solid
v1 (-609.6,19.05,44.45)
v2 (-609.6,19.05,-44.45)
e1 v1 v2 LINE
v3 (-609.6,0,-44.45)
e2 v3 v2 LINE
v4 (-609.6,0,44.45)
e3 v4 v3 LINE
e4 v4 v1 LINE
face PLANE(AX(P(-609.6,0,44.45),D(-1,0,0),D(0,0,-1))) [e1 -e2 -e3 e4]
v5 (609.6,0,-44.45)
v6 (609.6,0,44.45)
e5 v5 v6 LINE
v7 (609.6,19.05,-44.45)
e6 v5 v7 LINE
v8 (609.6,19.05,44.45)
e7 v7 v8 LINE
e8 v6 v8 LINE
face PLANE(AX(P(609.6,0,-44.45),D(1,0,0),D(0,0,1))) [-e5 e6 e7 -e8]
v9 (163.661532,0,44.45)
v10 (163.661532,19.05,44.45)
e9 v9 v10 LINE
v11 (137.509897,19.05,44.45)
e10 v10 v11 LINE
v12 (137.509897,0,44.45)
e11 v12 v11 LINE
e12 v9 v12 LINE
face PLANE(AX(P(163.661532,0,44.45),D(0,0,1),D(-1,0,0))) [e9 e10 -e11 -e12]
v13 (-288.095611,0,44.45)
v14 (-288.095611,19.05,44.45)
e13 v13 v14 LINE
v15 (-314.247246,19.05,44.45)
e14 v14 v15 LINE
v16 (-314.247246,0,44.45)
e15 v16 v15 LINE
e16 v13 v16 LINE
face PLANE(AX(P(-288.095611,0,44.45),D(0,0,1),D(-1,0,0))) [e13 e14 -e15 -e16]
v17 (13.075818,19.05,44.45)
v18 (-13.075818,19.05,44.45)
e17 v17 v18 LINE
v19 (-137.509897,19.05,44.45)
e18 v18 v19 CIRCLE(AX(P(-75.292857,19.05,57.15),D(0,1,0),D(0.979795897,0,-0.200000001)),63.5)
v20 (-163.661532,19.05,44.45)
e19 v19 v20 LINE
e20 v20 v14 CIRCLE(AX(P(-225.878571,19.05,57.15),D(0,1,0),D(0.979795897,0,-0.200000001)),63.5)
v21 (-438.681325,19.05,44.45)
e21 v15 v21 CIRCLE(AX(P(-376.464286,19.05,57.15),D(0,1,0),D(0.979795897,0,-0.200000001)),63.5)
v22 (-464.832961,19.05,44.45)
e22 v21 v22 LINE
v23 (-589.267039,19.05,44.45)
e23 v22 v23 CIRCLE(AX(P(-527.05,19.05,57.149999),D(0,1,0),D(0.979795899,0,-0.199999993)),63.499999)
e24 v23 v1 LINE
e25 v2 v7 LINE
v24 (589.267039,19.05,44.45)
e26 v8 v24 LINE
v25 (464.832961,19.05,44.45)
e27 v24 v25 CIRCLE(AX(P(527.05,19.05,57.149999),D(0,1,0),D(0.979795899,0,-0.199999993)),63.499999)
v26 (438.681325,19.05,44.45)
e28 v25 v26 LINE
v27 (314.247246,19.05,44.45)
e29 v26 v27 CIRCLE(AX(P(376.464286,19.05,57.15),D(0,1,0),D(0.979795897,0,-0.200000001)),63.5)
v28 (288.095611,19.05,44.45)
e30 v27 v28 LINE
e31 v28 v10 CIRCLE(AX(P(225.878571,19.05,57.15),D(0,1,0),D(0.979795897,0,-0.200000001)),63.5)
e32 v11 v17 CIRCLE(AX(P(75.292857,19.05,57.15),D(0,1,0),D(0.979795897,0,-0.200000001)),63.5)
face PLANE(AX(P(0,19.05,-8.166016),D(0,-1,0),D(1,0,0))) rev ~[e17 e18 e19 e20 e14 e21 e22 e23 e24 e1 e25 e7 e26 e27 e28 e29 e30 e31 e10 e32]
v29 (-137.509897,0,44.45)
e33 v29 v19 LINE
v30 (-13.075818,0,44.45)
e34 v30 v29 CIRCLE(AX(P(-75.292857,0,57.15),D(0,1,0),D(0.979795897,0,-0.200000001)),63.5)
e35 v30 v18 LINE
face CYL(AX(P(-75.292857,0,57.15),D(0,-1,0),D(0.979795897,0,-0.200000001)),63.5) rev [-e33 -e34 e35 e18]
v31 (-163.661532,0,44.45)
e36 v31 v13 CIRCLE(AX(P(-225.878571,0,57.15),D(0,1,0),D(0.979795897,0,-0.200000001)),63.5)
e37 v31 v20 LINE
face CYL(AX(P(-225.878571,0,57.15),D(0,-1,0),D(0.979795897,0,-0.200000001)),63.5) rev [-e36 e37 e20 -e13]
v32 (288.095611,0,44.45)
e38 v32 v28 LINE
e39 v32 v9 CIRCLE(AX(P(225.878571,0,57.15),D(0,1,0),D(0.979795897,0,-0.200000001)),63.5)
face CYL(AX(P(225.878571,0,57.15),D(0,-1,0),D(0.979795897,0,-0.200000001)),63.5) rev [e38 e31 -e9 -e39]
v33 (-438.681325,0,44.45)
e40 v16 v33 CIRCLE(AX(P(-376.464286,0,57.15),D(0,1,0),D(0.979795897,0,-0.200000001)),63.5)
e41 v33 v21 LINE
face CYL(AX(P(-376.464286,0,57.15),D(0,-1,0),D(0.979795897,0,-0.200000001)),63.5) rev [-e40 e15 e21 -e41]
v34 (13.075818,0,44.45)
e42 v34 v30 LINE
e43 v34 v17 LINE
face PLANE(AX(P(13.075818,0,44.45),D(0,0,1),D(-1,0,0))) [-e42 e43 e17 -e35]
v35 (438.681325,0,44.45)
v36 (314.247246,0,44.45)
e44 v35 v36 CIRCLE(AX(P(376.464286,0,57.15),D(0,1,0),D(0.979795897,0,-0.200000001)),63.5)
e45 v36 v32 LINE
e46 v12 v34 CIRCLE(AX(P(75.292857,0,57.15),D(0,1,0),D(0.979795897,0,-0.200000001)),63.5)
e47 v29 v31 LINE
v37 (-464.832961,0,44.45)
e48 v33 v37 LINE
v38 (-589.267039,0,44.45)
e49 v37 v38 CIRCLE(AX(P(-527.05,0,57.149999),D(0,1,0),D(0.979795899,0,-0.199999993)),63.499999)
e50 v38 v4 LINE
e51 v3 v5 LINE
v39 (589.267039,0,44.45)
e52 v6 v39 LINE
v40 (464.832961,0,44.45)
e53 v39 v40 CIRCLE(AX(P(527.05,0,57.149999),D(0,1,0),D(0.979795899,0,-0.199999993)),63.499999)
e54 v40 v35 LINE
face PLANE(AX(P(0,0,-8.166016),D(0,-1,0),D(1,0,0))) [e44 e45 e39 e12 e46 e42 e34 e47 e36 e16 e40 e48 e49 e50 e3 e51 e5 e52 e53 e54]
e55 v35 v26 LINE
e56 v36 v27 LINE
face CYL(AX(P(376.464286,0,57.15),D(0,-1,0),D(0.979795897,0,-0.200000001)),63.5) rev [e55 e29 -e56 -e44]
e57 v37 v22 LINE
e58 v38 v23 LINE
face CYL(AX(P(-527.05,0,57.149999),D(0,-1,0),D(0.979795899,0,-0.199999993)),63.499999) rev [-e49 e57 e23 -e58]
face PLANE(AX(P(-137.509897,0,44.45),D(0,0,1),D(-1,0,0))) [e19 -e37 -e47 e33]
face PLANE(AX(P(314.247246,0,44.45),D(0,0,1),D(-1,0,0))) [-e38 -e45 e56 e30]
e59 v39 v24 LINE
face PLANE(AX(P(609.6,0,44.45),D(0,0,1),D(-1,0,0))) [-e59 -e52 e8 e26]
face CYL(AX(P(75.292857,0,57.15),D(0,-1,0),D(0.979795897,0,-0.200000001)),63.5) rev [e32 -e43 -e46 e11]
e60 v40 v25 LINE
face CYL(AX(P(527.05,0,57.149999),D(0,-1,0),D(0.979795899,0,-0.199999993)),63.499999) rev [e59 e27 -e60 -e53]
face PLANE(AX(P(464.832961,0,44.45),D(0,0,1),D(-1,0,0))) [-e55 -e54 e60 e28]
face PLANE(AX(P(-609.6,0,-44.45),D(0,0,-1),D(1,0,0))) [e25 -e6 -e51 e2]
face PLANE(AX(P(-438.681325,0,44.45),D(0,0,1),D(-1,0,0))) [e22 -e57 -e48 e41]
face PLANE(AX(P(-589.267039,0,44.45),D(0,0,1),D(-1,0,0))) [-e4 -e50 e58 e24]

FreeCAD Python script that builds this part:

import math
import FreeCAD as App
import Part
import Sketcher
from FreeCAD import Vector
Q = App.Units.Quantity

doc = App.newDocument("Part")
body = doc.addObject("PartDesign::Body", "Body")

# Sketch on XZ plane
sketch1 = doc.addObject("Sketcher::SketchObject", "Sketch")
body.addObject(sketch1)
sketch1.AttachmentSupport = (doc.XZ_Plane, [""])
sketch1.MapMode = "FlatFace"
sketch1.addGeometry([
    Part.LineSegment(Vector(-610, -44, 0), Vector(610, -44, 0)),  # 0
    Part.LineSegment(Vector(610, -44, 0), Vector(610, 44, 0)),  # 1
    Part.LineSegment(Vector(610, 44, 0), Vector(589, 44, 0)),  # 2
    Part.ArcOfCircle(Part.Circle(Vector(527, 57, 0), Vector(0, 0, 1), 63), math.radians(-168), math.radians(-12)),  # 3
    Part.LineSegment(Vector(465, 44, 0), Vector(439, 44, 0)),  # 4
    Part.ArcOfCircle(Part.Circle(Vector(376, 57, 0), Vector(0, 0, 1), 64), math.radians(-168), math.radians(-12)),  # 5
    Part.LineSegment(Vector(314, 44, 0), Vector(288, 44, 0)),  # 6
    Part.ArcOfCircle(Part.Circle(Vector(226, 57, 0), Vector(0, 0, 1), 64), math.radians(-168), math.radians(-12)),  # 7
    Part.LineSegment(Vector(164, 44, 0), Vector(138, 44, 0)),  # 8
    Part.ArcOfCircle(Part.Circle(Vector(75, 57, 0), Vector(0, 0, 1), 64), math.radians(-168), math.radians(-12)),  # 9
    Part.LineSegment(Vector(13, 44, 0), Vector(-13, 44, 0)),  # 10
    Part.ArcOfCircle(Part.Circle(Vector(-75, 57, 0), Vector(0, 0, 1), 64), math.radians(-168), math.radians(-12)),  # 11
    Part.LineSegment(Vector(-138, 44, 0), Vector(-164, 44, 0)),  # 12
    Part.ArcOfCircle(Part.Circle(Vector(-226, 57, 0), Vector(0, 0, 1), 64), math.radians(-168), math.radians(-12)),  # 13
    Part.LineSegment(Vector(-288, 44, 0), Vector(-314, 44, 0)),  # 14
    Part.ArcOfCircle(Part.Circle(Vector(-376, 57, 0), Vector(0, 0, 1), 64), math.radians(-168), math.radians(-12)),  # 15
    Part.LineSegment(Vector(-439, 44, 0), Vector(-465, 44, 0)),  # 16
    Part.ArcOfCircle(Part.Circle(Vector(-527, 57, 0), Vector(0, 0, 1), 63), math.radians(-168), math.radians(-12)),  # 17
    Part.LineSegment(Vector(-589, 44, 0), Vector(-610, 44, 0)),  # 18
    Part.LineSegment(Vector(-610, 44, 0), Vector(-610, -44, 0)),  # 19
], False)
sketch1.addConstraint([
    Sketcher.Constraint("Coincident", 0, 2, 1, 1),
    Sketcher.Constraint("Coincident", 1, 2, 2, 1),
    Sketcher.Constraint("Coincident", 2, 2, 3, 2),
    Sketcher.Constraint("Coincident", 3, 1, 4, 1),
    Sketcher.Constraint("Coincident", 4, 2, 5, 2),
    Sketcher.Constraint("Coincident", 5, 1, 6, 1),
    Sketcher.Constraint("Coincident", 6, 2, 7, 2),
    Sketcher.Constraint("Coincident", 7, 1, 8, 1),
    Sketcher.Constraint("Coincident", 8, 2, 9, 2),
    Sketcher.Constraint("Coincident", 9, 1, 10, 1),
    Sketcher.Constraint("Coincident", 10, 2, 11, 2),
    Sketcher.Constraint("Coincident", 11, 1, 12, 1),
    Sketcher.Constraint("Coincident", 12, 2, 13, 2),
    Sketcher.Constraint("Coincident", 13, 1, 14, 1),
    Sketcher.Constraint("Coincident", 14, 2, 15, 2),
    Sketcher.Constraint("Coincident", 15, 1, 16, 1),
    Sketcher.Constraint("Coincident", 16, 2, 17, 2),
    Sketcher.Constraint("Coincident", 17, 1, 18, 1),
    Sketcher.Constraint("Coincident", 18, 2, 19, 1),
    Sketcher.Constraint("Coincident", 19, 2, 0, 1),
    Sketcher.Constraint("Horizontal", 0),
    Sketcher.Constraint("Vertical", 1),
    Sketcher.Constraint("Horizontal", 2),
    Sketcher.Constraint("Horizontal", 4),
    Sketcher.Constraint("Horizontal", 6),
    Sketcher.Constraint("Horizontal", 8),
    Sketcher.Constraint("Horizontal", 10),
    Sketcher.Constraint("Horizontal", 12),
    Sketcher.Constraint("Horizontal", 14),
    Sketcher.Constraint("Horizontal", 16),
    Sketcher.Constraint("Horizontal", 18),
    Sketcher.Constraint("Vertical", 19),
    Sketcher.Constraint("Equal", 3, 5),
    Sketcher.Constraint("Equal", 5, 7),
    Sketcher.Constraint("Equal", 7, 9),
    Sketcher.Constraint("Equal", 9, 11),
    Sketcher.Constraint("Equal", 11, 13),
    Sketcher.Constraint("Equal", 13, 15),
    Sketcher.Constraint("Equal", 15, 17),
    Sketcher.Constraint("Symmetric", 0, 2, 18, 2, -1, 1),
    Sketcher.Constraint("Symmetric", 9, 3, 11, 3, -2),
    Sketcher.Constraint("Symmetric", 7, 3, 13, 3, -2),
    Sketcher.Constraint("Symmetric", 5, 3, 15, 3, -2),
    Sketcher.Constraint("Symmetric", 3, 3, 17, 3, -2),
    Sketcher.Constraint("Horizontal", 3, 3, 5, 3),
    Sketcher.Constraint("Horizontal", 5, 3, 7, 3),
    Sketcher.Constraint("Horizontal", 7, 3, 9, 3),
    Sketcher.Constraint("Horizontal", 2, 2, 3, 1),
    Sketcher.Constraint("Horizontal", 4, 2, 5, 1),
    Sketcher.Constraint("Horizontal", 6, 2, 7, 1),
    Sketcher.Constraint("Horizontal", 8, 2, 9, 1),
    Sketcher.Constraint("Horizontal", 10, 2, 11, 1),
    Sketcher.Constraint("Horizontal", 12, 2, 13, 1),
    Sketcher.Constraint("Horizontal", 14, 2, 15, 1),
    Sketcher.Constraint("Horizontal", 16, 2, 17, 1),
    Sketcher.Constraint("Equal", 4, 6),
    Sketcher.Constraint("Equal", 6, 8),
    Sketcher.Constraint("Equal", 8, 10),
    Sketcher.Constraint("Radius", 3, Q("2.5 in")),
    Sketcher.Constraint("DistanceX", 0, 1, 0, 2, Q("48 in")),
    Sketcher.Constraint("DistanceY", 1, 1, 1, 2, Q("3.5 in")),
    Sketcher.Constraint("DistanceY", 0, 2, 3, 3, Q("4 in")),
    Sketcher.Constraint("DistanceX", -1, 1, 3, 3, Q("20.75 in")),
])
pad1 = doc.addObject("PartDesign::Pad", "Pad")
body.addObject(pad1)
pad1.Profile = sketch1
pad1.Length = Q("0.75 in")
pad1.Reversed = True

doc.recompute()
